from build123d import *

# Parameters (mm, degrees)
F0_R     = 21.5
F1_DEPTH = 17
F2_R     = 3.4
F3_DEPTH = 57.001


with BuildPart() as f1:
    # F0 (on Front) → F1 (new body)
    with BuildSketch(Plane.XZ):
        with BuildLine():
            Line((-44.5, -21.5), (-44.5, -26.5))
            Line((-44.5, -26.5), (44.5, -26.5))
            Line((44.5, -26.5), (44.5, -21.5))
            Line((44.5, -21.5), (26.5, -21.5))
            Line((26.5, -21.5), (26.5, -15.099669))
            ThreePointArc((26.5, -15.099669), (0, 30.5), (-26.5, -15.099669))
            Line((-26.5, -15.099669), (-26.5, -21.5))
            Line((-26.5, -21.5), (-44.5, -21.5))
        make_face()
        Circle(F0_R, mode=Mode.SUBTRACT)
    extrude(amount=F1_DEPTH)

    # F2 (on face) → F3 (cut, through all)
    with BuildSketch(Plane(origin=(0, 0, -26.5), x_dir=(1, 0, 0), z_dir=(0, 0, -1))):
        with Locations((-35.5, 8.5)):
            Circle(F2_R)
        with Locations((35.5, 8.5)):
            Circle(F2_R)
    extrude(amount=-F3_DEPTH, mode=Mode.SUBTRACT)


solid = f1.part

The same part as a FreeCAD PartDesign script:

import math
import FreeCAD as App
import Part
import Sketcher
from FreeCAD import Vector

doc = App.newDocument("Part")
body = doc.addObject("PartDesign::Body", "Body")

# Sketch on XZ plane
sketch1 = doc.addObject("Sketcher::SketchObject", "Sketch")
body.addObject(sketch1)
sketch1.AttachmentSupport = (doc.XZ_Plane, [""])
sketch1.MapMode = "FlatFace"
sketch1.addGeometry([
    Part.LineSegment(Vector(-44, -22, 0), Vector(-44, -26, 0)),  # 0
    Part.LineSegment(Vector(-44, -26, 0), Vector(44, -26, 0)),  # 1
    Part.LineSegment(Vector(44, -26, 0), Vector(44, -22, 0)),  # 2
    Part.LineSegment(Vector(44, -22, 0), Vector(26, -22, 0)),  # 3
    Part.LineSegment(Vector(26, -22, 0), Vector(26, -15, 0)),  # 4
    Part.ArcOfCircle(Part.Circle(Vector(0, 0, 0), Vector(0, 0, 1), 31), math.radians(-30), math.radians(210)),  # 5
    Part.LineSegment(Vector(-26, -15, 0), Vector(-26, -22, 0)),  # 6
    Part.LineSegment(Vector(-26, -22, 0), Vector(-44, -22, 0)),  # 7
    Part.Circle(Vector(0, 0, 0), Vector(0, 0, 1), 22),  # 8
], False)
sketch1.addConstraint([
    Sketcher.Constraint("Coincident", 0, 2, 1, 1),
    Sketcher.Constraint("Coincident", 1, 2, 2, 1),
    Sketcher.Constraint("Coincident", 2, 2, 3, 1),
    Sketcher.Constraint("Coincident", 3, 2, 4, 1),
    Sketcher.Constraint("Coincident", 4, 2, 5, 1),
    Sketcher.Constraint("Coincident", 5, 2, 6, 1),
    Sketcher.Constraint("Coincident", 6, 2, 7, 1),
    Sketcher.Constraint("Coincident", 7, 2, 0, 1),
    Sketcher.Constraint("Vertical", 0),
    Sketcher.Constraint("Horizontal", 1),
    Sketcher.Constraint("Vertical", 2),
    Sketcher.Constraint("Horizontal", 3),
    Sketcher.Constraint("Vertical", 4),
    Sketcher.Constraint("Vertical", 6),
    Sketcher.Constraint("Horizontal", 7),
    Sketcher.Constraint("Coincident", 5, 3, -1, 1),
    Sketcher.Constraint("Coincident", 8, 3, -1, 1),
    Sketcher.Constraint("Symmetric", 3, 2, 6, 2, -2),
    Sketcher.Constraint("Equal", 3, 7),
    Sketcher.Constraint("Diameter", 8, 43.0),
    Sketcher.Constraint("Radius", 5, 30.5),
    Sketcher.Constraint("DistanceX", 1, 1, 1, 2, 89.0),
    Sketcher.Constraint("DistanceX", 3, 2, 3, 1, 18.0),
    Sketcher.Constraint("DistanceY", 0, 2, 0, 1, 5.0),
    Sketcher.Constraint("DistanceY", 0, 2, -1, 1, 26.5),
])
pad1 = doc.addObject("PartDesign::Pad", "Pad")
body.addObject(pad1)
pad1.Profile = sketch1
pad1.Length = 17

# Sketch on XY plane
sketch2 = doc.addObject("Sketcher::SketchObject", "Sketch001")
body.addObject(sketch2)
sketch2.AttachmentSupport = (doc.XY_Plane, [""])
sketch2.MapMode = "FlatFace"
sketch2.AttachmentOffset = App.Placement(Vector(0, 0, -26.5), App.Rotation())
sketch2.addGeometry([
    Part.Circle(Vector(-35.5, -8.5, 0), Vector(0, 0, 1), 3.4),
    Part.Circle(Vector(35.5, -8.5, 0), Vector(0, 0, 1), 3.4),
], False)
sketch2.addConstraint([
    Sketcher.Constraint("Equal", 0, 1),
    Sketcher.Constraint("Symmetric", 0, 3, 1, 3, -2),
    Sketcher.Constraint("Diameter", 0, 6.8),
    Sketcher.Constraint("DistanceX", 0, 3, 1, 3, 71.0),
    Sketcher.Constraint("DistanceY", 0, 3, -1, 1, 8.5),
])
pocket1 = doc.addObject("PartDesign::Pocket", "Pocket")
body.addObject(pocket1)
pocket1.Profile = sketch2
pocket1.Type = "ThroughAll"
pocket1.Reversed = True

doc.recompute()
